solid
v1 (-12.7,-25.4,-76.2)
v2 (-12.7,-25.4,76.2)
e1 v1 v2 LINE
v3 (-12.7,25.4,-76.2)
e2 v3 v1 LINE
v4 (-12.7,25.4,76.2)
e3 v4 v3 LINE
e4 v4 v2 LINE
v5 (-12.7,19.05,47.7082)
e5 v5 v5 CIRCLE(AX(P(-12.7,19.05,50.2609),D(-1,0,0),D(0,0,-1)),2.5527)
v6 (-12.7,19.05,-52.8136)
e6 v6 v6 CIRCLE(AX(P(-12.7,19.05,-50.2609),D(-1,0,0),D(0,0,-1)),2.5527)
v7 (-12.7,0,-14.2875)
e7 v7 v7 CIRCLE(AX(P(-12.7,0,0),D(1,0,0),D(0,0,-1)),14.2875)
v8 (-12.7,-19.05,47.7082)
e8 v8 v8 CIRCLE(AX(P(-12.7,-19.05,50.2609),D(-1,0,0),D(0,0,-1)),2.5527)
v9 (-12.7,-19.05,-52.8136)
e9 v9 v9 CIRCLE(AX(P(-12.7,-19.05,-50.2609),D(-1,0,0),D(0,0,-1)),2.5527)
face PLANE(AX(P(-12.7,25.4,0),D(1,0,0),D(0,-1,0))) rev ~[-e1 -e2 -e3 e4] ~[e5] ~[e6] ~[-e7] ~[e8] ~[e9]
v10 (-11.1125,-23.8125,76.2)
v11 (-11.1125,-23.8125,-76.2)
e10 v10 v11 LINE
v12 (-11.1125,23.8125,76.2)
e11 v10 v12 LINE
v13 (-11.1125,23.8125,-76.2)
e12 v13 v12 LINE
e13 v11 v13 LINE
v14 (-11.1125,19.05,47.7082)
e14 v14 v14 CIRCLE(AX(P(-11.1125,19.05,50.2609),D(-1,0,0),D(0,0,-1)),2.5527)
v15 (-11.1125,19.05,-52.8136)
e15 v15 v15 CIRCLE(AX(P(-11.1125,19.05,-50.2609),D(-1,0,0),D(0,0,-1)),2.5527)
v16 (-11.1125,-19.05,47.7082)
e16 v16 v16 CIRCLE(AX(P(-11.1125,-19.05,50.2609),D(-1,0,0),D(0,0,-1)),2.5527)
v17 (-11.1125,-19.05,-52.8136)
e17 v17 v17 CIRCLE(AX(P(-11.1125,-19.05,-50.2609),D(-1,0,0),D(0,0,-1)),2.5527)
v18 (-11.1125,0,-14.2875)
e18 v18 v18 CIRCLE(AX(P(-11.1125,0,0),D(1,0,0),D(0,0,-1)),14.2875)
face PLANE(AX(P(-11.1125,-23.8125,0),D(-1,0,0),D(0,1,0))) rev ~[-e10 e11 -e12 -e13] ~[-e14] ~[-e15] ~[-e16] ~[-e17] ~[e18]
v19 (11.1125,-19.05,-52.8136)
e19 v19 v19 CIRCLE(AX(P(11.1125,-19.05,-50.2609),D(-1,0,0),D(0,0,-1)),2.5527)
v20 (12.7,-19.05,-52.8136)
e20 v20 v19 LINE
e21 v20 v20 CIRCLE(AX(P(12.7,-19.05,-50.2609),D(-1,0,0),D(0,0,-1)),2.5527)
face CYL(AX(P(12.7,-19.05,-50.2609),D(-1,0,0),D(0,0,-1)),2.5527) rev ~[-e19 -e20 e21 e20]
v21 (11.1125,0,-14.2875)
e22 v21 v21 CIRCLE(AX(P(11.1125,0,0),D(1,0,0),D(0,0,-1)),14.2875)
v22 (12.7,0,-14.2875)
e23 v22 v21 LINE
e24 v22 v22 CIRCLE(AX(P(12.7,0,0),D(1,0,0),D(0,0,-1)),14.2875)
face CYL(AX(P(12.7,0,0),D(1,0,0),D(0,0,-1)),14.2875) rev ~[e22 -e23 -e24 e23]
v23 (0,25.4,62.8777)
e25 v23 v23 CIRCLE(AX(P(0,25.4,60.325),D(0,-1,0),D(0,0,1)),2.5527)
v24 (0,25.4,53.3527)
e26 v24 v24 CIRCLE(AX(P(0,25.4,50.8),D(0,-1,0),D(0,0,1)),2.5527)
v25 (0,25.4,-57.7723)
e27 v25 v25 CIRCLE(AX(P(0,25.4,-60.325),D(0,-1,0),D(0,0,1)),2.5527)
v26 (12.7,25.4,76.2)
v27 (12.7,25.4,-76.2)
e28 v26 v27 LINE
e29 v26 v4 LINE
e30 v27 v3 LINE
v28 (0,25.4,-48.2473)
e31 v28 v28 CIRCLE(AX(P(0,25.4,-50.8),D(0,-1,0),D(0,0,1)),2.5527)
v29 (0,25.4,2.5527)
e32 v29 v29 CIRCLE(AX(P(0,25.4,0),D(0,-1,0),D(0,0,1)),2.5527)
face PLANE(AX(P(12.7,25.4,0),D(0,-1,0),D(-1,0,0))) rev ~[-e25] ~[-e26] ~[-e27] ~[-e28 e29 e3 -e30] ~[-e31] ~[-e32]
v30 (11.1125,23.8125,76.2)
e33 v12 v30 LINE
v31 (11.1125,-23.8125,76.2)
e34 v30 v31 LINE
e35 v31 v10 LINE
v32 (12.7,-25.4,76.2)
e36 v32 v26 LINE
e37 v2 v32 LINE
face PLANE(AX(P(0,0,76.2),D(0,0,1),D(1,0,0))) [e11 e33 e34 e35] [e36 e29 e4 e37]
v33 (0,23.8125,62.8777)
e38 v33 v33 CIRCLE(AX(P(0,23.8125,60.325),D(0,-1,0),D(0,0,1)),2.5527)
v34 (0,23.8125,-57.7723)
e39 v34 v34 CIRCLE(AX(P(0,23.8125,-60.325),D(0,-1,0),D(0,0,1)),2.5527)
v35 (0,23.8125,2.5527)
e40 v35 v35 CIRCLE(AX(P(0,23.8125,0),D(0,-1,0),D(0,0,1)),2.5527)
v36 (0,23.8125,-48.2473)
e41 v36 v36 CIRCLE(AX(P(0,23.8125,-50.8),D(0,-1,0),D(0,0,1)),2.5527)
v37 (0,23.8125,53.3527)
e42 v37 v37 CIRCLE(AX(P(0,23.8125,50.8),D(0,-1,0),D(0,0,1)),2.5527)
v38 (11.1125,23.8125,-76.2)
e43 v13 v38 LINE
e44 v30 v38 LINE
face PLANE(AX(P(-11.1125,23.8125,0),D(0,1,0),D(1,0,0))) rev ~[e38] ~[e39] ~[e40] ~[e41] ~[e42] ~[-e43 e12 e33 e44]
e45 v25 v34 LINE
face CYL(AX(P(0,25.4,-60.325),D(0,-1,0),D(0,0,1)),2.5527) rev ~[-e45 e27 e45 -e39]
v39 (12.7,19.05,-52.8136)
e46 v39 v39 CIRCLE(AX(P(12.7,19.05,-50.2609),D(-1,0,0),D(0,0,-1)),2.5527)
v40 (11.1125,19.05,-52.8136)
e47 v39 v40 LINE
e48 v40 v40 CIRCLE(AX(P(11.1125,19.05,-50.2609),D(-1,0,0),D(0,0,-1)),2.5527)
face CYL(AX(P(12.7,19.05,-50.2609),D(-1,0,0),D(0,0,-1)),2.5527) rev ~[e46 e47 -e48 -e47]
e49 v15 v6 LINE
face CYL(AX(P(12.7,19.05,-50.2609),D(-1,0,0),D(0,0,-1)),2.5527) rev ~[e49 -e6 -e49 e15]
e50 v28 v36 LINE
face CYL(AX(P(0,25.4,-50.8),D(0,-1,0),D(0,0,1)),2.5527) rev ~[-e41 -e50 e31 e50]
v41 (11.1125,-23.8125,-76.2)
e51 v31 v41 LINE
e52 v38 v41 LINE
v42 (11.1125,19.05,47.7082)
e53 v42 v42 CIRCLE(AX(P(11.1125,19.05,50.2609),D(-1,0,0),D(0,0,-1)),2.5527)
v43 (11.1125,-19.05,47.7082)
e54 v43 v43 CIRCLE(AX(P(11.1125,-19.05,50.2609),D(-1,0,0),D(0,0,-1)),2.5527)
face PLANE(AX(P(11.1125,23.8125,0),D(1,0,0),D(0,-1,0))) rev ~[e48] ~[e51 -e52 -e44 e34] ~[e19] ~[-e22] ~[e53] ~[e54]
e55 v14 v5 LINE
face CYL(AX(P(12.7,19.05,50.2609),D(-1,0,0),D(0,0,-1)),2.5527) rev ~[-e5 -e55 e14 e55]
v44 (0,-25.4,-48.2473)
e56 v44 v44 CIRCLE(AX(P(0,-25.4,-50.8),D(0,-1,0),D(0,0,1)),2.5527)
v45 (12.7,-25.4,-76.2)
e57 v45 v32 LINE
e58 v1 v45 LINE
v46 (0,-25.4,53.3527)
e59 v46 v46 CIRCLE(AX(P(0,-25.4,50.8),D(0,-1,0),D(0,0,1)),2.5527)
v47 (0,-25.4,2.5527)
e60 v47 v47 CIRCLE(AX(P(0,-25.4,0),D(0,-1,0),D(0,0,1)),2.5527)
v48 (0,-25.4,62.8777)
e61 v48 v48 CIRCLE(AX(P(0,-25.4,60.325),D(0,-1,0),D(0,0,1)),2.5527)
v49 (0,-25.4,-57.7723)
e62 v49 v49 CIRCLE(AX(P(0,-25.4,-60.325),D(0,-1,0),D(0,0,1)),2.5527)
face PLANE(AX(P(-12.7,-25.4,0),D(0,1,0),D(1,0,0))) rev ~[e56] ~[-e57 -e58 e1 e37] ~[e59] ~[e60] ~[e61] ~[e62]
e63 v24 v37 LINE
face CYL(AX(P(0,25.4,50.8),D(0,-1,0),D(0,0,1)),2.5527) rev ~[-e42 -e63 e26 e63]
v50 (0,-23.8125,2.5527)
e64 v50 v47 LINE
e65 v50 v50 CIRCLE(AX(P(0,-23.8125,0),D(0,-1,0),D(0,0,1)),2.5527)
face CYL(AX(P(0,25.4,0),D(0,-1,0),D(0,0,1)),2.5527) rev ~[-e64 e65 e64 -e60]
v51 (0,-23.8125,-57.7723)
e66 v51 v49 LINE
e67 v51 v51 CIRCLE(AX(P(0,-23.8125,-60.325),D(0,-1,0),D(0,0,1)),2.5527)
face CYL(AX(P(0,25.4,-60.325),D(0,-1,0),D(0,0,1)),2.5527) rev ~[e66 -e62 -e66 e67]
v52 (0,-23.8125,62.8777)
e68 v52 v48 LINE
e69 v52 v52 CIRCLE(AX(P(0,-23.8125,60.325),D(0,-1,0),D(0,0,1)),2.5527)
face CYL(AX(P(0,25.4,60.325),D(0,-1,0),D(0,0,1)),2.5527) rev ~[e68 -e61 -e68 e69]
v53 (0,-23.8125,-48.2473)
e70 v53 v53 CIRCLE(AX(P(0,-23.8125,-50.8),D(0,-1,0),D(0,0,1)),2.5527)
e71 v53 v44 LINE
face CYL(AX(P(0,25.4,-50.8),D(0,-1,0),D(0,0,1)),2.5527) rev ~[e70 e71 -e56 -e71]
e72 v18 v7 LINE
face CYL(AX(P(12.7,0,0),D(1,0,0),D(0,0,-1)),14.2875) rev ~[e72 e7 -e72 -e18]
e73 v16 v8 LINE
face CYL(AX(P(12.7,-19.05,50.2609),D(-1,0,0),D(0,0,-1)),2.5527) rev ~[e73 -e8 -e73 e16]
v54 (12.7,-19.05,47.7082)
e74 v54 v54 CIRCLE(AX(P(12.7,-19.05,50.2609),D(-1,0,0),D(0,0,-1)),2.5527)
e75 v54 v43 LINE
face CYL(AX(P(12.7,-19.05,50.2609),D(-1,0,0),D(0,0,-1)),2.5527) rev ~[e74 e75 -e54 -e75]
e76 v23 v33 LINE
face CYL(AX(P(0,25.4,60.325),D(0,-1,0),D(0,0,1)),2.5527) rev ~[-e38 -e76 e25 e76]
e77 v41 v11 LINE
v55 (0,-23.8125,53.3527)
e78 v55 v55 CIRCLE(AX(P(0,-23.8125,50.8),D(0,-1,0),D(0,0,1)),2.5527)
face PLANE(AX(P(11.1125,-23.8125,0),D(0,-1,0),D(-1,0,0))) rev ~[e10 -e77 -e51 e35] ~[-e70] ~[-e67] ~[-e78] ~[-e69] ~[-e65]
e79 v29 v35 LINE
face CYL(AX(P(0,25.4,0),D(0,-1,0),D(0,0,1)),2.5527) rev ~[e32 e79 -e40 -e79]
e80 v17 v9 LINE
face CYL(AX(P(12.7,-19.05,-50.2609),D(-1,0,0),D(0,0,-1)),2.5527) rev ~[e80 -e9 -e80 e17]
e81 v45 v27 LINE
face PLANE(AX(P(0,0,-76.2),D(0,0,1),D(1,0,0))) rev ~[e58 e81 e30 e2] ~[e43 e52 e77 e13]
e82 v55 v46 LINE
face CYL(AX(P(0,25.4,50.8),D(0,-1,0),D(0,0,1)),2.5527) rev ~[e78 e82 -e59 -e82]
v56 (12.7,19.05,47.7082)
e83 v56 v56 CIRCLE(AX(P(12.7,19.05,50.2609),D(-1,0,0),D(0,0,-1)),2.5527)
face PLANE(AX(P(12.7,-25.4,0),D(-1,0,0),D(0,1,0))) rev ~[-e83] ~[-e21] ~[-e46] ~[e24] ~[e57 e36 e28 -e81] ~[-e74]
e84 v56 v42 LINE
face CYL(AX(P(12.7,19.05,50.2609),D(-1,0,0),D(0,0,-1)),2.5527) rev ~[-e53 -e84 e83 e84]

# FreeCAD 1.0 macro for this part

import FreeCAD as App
import Part
import Sketcher
Q = App.Units.Quantity


def add_polygon(sketch, points):
    """Adds a closed chain of lines whose ends are joined by coincident constraints."""
    first, n = sketch.GeometryCount, len(points)
    for a, b in zip(points, points[1:] + points[:1]):
        sketch.addGeometry(Part.LineSegment(App.Vector(*a, 0), App.Vector(*b, 0)), False)
    for i in range(n):
        sketch.addConstraint(Sketcher.Constraint("Coincident", first + i, 2, first + (i + 1) % n, 1))

doc = App.newDocument("Part")
params = doc.addObject("Spreadsheet::Sheet", "Params")
for row, (alias, value) in enumerate([
    ("sketch1_width", "1 in"),
    ("sketch1_height", "2 in"),
    ("pad1_length", "6 in"),
    ("sketch2_diameter", "0.201 in"),
    ("hole_diameter", "0.201 in"),
    ("sketch3_diameter", "0.201 in"),
    ("hole2_diameter", "0.201 in"),
    ("sketch4_diameter", "0.201 in"),
    ("hole3_diameter", "0.201 in"),
    ("sketch5_diameter", "1.125 in"),
], start=1):
    params.set(f"A{row}", alias)
    params.set(f"B{row}", "=" + value)
    params.setAlias(f"B{row}", alias)

body = doc.addObject("PartDesign::Body", "Body")

sketch1 = body.newObject("Sketcher::SketchObject", "Sketch")
sketch1.AttachmentSupport = (doc.getObject("XY_Plane"), [""])
sketch1.MapMode = "FlatFace"
add_polygon(sketch1, [(-12.7, 25.4), (-12.7, -25.4), (12.7, -25.4), (12.7, 25.4)])
add_polygon(sketch1, [(-11.1125, -23.8125), (-11.1125, 23.8125), (11.1125, 23.8125), (11.1125, -23.8125)])
sketch1.addConstraint(Sketcher.Constraint("Vertical", 0))
sketch1.addConstraint(Sketcher.Constraint("Horizontal", 1))
sketch1.addConstraint(Sketcher.Constraint("Vertical", 2))
sketch1.addConstraint(Sketcher.Constraint("Horizontal", 3))
sketch1.addConstraint(Sketcher.Constraint("Vertical", 4))
sketch1.addConstraint(Sketcher.Constraint("Horizontal", 5))
sketch1.addConstraint(Sketcher.Constraint("Vertical", 6))
sketch1.addConstraint(Sketcher.Constraint("Horizontal", 7))
sketch1.addConstraint(Sketcher.Constraint("Symmetric", 0, 2, 2, 2, -1, 1))
sketch1.addConstraint(Sketcher.Constraint("Symmetric", 4, 2, 6, 2, -1, 1))
sketch1.addConstraint(Sketcher.Constraint("DistanceX", 1, 1, 1, 2, Q("1 in")))
sketch1.addConstraint(Sketcher.Constraint("DistanceY", 0, 2, 0, 1, Q("2 in")))
sketch1.addConstraint(Sketcher.Constraint("DistanceX", 3, 2, 4, 2, Q("0.0625 in")))
sketch1.addConstraint(Sketcher.Constraint("DistanceY", 4, 2, 3, 2, Q("0.0625 in")))
sketch1.setExpression("Constraints[18]", "Params.sketch1_width")
sketch1.setExpression("Constraints[19]", "Params.sketch1_height")
pad1 = body.newObject("PartDesign::Pad", "Pad")
pad1.Profile = sketch1
pad1.setExpression("Length", "Params.pad1_length")
pad1.Midplane = True

sketch2 = body.newObject("Sketcher::SketchObject", "Sketch001")
sketch2.AttachmentSupport = (doc.getObject("XZ_Plane"), [""])
sketch2.MapMode = "FlatFace"
sketch2.AttachmentOffset = App.Placement(App.Vector(0, 0, -1 * 25.4), App.Rotation())
sketch2.addGeometry(Part.Circle(App.Vector(0, -50.8, 0), App.Vector(0, 0, 1), 2.5527), False)
sketch2.addGeometry(Part.Circle(App.Vector(0, 50.8, 0), App.Vector(0, 0, 1), 2.5527), False)
sketch2.addGeometry(Part.Circle(App.Vector(0, 0, 0), App.Vector(0, 0, 1), 2.5527), False)
sketch2.addConstraint(Sketcher.Constraint("Coincident", 2, 3, -1, 1))
sketch2.addConstraint(Sketcher.Constraint("Equal", 0, 1))
sketch2.addConstraint(Sketcher.Constraint("Equal", 1, 2))
sketch2.addConstraint(Sketcher.Constraint("Symmetric", 0, 3, 1, 3, -1, 1))
sketch2.addConstraint(Sketcher.Constraint("PointOnObject", 0, 3, -2))
sketch2.addConstraint(Sketcher.Constraint("Diameter", 0, Q("0.201 in")))
sketch2.addConstraint(Sketcher.Constraint("DistanceY", 0, 3, -1, 1, Q("2 in")))
sketch2.setExpression("Constraints[5]", "Params.sketch2_diameter")
doc.recompute()
hole = body.newObject("PartDesign::Hole", "Hole")
hole.Profile = sketch2
hole.ThreadType = "None"
hole.setExpression("Diameter", "Params.hole_diameter")
hole.DepthType = "ThroughAll"
hole.Reversed = True

sketch3 = body.newObject("Sketcher::SketchObject", "Sketch002")
sketch3.AttachmentSupport = (doc.getObject("YZ_Plane"), [""])
sketch3.MapMode = "FlatFace"
sketch3.AttachmentOffset = App.Placement(App.Vector(0, 0, 0.5 * 25.4), App.Rotation())
sketch3.addGeometry(Part.Circle(App.Vector(19.05, 50.2609, 0), App.Vector(0, 0, 1), 2.5527), False)
sketch3.addGeometry(Part.Circle(App.Vector(19.05, -50.2609, 0), App.Vector(0, 0, 1), 2.5527), False)
sketch3.addGeometry(Part.Circle(App.Vector(-19.05, -50.2609, 0), App.Vector(0, 0, 1), 2.5527), False)
sketch3.addGeometry(Part.Circle(App.Vector(-19.05, 50.2609, 0), App.Vector(0, 0, 1), 2.5527), False)
sketch3.addConstraint(Sketcher.Constraint("Equal", 0, 1))
sketch3.addConstraint(Sketcher.Constraint("Equal", 1, 2))
sketch3.addConstraint(Sketcher.Constraint("Equal", 2, 3))
sketch3.addConstraint(Sketcher.Constraint("Symmetric", 0, 3, 2, 3, -1, 1))
sketch3.addConstraint(Sketcher.Constraint("Symmetric", 1, 3, 3, 3, -1, 1))
sketch3.addConstraint(Sketcher.Constraint("Symmetric", 1, 3, 2, 3, -2))
sketch3.addConstraint(Sketcher.Constraint("Diameter", 0, Q("0.201 in")))
sketch3.addConstraint(Sketcher.Constraint("DistanceX", 2, 3, 1, 3, Q("1.5 in")))
sketch3.addConstraint(Sketcher.Constraint("DistanceY", -1, 1, 0, 3, Q("50.261 mm")))
sketch3.setExpression("Constraints[6]", "Params.sketch3_diameter")
doc.recompute()
hole2 = body.newObject("PartDesign::Hole", "Hole001")
hole2.Profile = sketch3
hole2.ThreadType = "None"
hole2.setExpression("Diameter", "Params.hole2_diameter")
hole2.DepthType = "ThroughAll"

sketch4 = body.newObject("Sketcher::SketchObject", "Sketch003")
sketch4.AttachmentSupport = (doc.getObject("XZ_Plane"), [""])
sketch4.MapMode = "FlatFace"
sketch4.AttachmentOffset = App.Placement(App.Vector(0, 0, -1 * 25.4), App.Rotation())
sketch4.addGeometry(Part.Circle(App.Vector(0, -60.325, 0), App.Vector(0, 0, 1), 2.5527), False)
sketch4.addGeometry(Part.Circle(App.Vector(0, 60.325, 0), App.Vector(0, 0, 1), 2.5527), False)
sketch4.addConstraint(Sketcher.Constraint("Equal", 0, 1))
sketch4.addConstraint(Sketcher.Constraint("Symmetric", 0, 3, 1, 3, -1, 1))
sketch4.addConstraint(Sketcher.Constraint("PointOnObject", 0, 3, -2))
sketch4.addConstraint(Sketcher.Constraint("Diameter", 0, Q("0.201 in")))
sketch4.addConstraint(Sketcher.Constraint("DistanceY", 0, 3, 1, 3, Q("4.75 in")))
sketch4.setExpression("Constraints[3]", "Params.sketch4_diameter")
doc.recompute()
hole3 = body.newObject("PartDesign::Hole", "Hole002")
hole3.Profile = sketch4
hole3.ThreadType = "None"
hole3.setExpression("Diameter", "Params.hole3_diameter")
hole3.DepthType = "ThroughAll"
hole3.Reversed = True

sketch5 = body.newObject("Sketcher::SketchObject", "Sketch004")
sketch5.AttachmentSupport = (doc.getObject("YZ_Plane"), [""])
sketch5.MapMode = "FlatFace"
sketch5.AttachmentOffset = App.Placement(App.Vector(0, 0, 0.5 * 25.4), App.Rotation())
sketch5.addGeometry(Part.Circle(App.Vector(0, 0, 0), App.Vector(0, 0, 1), 14.2875), False)
sketch5.addConstraint(Sketcher.Constraint("Coincident", 0, 3, -1, 1))
sketch5.addConstraint(Sketcher.Constraint("Diameter", 0, Q("1.125 in")))
sketch5.setExpression("Constraints[1]", "Params.sketch5_diameter")
pocket1 = body.newObject("PartDesign::Pocket", "Pocket")
pocket1.Profile = sketch5
pocket1.Type = "ThroughAll"

doc.recompute()
